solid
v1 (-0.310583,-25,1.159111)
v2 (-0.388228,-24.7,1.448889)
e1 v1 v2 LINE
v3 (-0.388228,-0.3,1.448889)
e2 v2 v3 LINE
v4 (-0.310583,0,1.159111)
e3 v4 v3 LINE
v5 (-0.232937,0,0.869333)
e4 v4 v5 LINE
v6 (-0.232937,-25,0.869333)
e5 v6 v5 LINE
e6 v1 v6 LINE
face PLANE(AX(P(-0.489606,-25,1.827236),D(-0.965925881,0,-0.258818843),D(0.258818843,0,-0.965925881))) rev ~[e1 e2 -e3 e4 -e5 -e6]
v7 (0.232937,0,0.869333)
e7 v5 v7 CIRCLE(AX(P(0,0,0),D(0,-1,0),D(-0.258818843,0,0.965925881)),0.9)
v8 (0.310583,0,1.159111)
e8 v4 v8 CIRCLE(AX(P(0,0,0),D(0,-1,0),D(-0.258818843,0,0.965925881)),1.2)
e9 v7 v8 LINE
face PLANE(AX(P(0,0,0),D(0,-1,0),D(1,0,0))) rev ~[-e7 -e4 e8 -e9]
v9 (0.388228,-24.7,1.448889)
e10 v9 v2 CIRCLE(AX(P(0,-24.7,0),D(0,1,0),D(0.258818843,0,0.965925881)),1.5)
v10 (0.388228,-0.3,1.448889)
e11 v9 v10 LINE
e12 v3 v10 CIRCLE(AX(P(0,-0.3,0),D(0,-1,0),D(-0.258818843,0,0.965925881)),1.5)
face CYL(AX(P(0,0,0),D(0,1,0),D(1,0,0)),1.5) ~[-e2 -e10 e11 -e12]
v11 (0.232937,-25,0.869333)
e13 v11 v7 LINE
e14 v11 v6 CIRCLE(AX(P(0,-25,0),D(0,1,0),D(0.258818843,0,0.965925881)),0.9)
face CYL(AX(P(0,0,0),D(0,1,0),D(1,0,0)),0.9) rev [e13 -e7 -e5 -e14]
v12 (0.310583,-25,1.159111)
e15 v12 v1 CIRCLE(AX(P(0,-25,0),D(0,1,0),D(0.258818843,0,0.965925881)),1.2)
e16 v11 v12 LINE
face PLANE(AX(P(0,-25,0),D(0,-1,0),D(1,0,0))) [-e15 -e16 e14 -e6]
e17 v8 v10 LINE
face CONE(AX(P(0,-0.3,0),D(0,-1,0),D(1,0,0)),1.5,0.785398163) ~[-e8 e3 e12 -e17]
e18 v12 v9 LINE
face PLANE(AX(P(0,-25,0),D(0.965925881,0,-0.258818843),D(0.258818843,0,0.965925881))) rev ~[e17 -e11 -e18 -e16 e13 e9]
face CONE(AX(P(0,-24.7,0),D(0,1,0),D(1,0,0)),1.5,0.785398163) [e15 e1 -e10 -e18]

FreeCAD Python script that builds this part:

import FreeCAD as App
import Part
import Sketcher
from FreeCAD import Vector
Q = App.Units.Quantity


def edges_at(feature, points):
    """Names of the edges that pass closest to the given points."""
    edges = feature.Shape.Edges
    near = lambda p: min(range(len(edges)), key=lambda i: edges[i].distToShape(Part.Vertex(*p))[0])
    return sorted({f"Edge{near(p) + 1}" for p in points})


def faces_at(feature, points):
    """Names of the faces that lie closest to the given points."""
    faces = feature.Shape.Faces
    near = lambda p: min(range(len(faces)), key=lambda i: faces[i].distToShape(Part.Vertex(*p))[0])
    return sorted({f"Face{near(p) + 1}" for p in points})

doc = App.newDocument("Part")
params = doc.addObject("Spreadsheet::Sheet", "Params")
for row, (alias, value) in enumerate([
    ("sketch1_diameter", "3 mm"),
    ("pad1_length", "25 mm"),
    ("thickness_wall", "0.6 mm"),
    ("chamfer_size", "0.3 mm"),
    ("chamfer2_size", "0.3 mm"),
], start=1):
    params.set(f"A{row}", alias)
    params.set(f"B{row}", "=" + value)
    params.setAlias(f"B{row}", alias)

body = doc.addObject("PartDesign::Body", "Body")

sketch1 = body.newObject("Sketcher::SketchObject", "Sketch")
sketch1.AttachmentSupport = (doc.getObject("XZ_Plane"), [""])
sketch1.MapMode = "FlatFace"
sketch1.addGeometry(Part.Circle(Vector(0, 0, 0), Vector(0, 0, 1), 1.5), False)
sketch1.addConstraint([
    Sketcher.Constraint("Coincident", 0, 3, -1, 1),
    Sketcher.Constraint("Diameter", 0, 3.0),
])
sketch1.setExpression("Constraints[1]", "Params.sketch1_diameter")
pad1 = body.newObject("PartDesign::Pad", "Pad")
pad1.Profile = sketch1
pad1.setExpression("Length", "Params.pad1_length")
doc.recompute()

thickness = body.newObject("PartDesign::Thickness", "Thickness")
thickness.Base = (pad1, faces_at(pad1, [(0, -25, 0), (0, 0, 0)]))
thickness.setExpression("Value", "Params.thickness_wall")
thickness.Reversed = True
thickness.Join = "Arc"
doc.recompute()

chamfer = body.newObject("PartDesign::Chamfer", "Chamfer")
chamfer.Base = (thickness, edges_at(thickness, [(-1.5, -25, 0)]))
chamfer.setExpression("Size", "Params.chamfer_size")
doc.recompute()

chamfer2 = body.newObject("PartDesign::Chamfer", "Chamfer001")
chamfer2.Base = (chamfer, edges_at(chamfer, [(-1.5, 0, 0)]))
chamfer2.setExpression("Size", "Params.chamfer2_size")

sketch2 = body.newObject("Sketcher::SketchObject", "Sketch001")
sketch2.AttachmentSupport = (doc.getObject("XZ_Plane"), [""])
sketch2.MapMode = "FlatFace"
sketch2.AttachmentOffset = App.Placement(Vector(0, 0, 25), App.Rotation())
sketch2.addGeometry([
    Part.LineSegment(Vector(-0.5, 1.8, 0), Vector(0, 0, 0)),
    Part.LineSegment(Vector(0, 0, 0), Vector(0.5, 1.8, 0)),
    Part.LineSegment(Vector(0.5, 1.8, 0), Vector(-0.5, 1.8, 0)),
], False)
sketch2.addConstraint([
    Sketcher.Constraint("Coincident", 0, 2, 1, 1),
    Sketcher.Constraint("Coincident", 1, 2, 2, 1),
    Sketcher.Constraint("Coincident", 2, 2, 0, 1),
    Sketcher.Constraint("Horizontal", 2),
    Sketcher.Constraint("Coincident", 0, 2, -1, 1),
    Sketcher.Constraint("Equal", 0, 1),
    Sketcher.Constraint("Angle", 0, Q("-75.000012 deg")),
    Sketcher.Constraint("DistanceX", 2, 2, 2, 1, 0.979212),
])
pocket1 = body.newObject("PartDesign::Pocket", "Pocket")
pocket1.Profile = sketch2
pocket1.Type = "ThroughAll"

doc.recompute()
